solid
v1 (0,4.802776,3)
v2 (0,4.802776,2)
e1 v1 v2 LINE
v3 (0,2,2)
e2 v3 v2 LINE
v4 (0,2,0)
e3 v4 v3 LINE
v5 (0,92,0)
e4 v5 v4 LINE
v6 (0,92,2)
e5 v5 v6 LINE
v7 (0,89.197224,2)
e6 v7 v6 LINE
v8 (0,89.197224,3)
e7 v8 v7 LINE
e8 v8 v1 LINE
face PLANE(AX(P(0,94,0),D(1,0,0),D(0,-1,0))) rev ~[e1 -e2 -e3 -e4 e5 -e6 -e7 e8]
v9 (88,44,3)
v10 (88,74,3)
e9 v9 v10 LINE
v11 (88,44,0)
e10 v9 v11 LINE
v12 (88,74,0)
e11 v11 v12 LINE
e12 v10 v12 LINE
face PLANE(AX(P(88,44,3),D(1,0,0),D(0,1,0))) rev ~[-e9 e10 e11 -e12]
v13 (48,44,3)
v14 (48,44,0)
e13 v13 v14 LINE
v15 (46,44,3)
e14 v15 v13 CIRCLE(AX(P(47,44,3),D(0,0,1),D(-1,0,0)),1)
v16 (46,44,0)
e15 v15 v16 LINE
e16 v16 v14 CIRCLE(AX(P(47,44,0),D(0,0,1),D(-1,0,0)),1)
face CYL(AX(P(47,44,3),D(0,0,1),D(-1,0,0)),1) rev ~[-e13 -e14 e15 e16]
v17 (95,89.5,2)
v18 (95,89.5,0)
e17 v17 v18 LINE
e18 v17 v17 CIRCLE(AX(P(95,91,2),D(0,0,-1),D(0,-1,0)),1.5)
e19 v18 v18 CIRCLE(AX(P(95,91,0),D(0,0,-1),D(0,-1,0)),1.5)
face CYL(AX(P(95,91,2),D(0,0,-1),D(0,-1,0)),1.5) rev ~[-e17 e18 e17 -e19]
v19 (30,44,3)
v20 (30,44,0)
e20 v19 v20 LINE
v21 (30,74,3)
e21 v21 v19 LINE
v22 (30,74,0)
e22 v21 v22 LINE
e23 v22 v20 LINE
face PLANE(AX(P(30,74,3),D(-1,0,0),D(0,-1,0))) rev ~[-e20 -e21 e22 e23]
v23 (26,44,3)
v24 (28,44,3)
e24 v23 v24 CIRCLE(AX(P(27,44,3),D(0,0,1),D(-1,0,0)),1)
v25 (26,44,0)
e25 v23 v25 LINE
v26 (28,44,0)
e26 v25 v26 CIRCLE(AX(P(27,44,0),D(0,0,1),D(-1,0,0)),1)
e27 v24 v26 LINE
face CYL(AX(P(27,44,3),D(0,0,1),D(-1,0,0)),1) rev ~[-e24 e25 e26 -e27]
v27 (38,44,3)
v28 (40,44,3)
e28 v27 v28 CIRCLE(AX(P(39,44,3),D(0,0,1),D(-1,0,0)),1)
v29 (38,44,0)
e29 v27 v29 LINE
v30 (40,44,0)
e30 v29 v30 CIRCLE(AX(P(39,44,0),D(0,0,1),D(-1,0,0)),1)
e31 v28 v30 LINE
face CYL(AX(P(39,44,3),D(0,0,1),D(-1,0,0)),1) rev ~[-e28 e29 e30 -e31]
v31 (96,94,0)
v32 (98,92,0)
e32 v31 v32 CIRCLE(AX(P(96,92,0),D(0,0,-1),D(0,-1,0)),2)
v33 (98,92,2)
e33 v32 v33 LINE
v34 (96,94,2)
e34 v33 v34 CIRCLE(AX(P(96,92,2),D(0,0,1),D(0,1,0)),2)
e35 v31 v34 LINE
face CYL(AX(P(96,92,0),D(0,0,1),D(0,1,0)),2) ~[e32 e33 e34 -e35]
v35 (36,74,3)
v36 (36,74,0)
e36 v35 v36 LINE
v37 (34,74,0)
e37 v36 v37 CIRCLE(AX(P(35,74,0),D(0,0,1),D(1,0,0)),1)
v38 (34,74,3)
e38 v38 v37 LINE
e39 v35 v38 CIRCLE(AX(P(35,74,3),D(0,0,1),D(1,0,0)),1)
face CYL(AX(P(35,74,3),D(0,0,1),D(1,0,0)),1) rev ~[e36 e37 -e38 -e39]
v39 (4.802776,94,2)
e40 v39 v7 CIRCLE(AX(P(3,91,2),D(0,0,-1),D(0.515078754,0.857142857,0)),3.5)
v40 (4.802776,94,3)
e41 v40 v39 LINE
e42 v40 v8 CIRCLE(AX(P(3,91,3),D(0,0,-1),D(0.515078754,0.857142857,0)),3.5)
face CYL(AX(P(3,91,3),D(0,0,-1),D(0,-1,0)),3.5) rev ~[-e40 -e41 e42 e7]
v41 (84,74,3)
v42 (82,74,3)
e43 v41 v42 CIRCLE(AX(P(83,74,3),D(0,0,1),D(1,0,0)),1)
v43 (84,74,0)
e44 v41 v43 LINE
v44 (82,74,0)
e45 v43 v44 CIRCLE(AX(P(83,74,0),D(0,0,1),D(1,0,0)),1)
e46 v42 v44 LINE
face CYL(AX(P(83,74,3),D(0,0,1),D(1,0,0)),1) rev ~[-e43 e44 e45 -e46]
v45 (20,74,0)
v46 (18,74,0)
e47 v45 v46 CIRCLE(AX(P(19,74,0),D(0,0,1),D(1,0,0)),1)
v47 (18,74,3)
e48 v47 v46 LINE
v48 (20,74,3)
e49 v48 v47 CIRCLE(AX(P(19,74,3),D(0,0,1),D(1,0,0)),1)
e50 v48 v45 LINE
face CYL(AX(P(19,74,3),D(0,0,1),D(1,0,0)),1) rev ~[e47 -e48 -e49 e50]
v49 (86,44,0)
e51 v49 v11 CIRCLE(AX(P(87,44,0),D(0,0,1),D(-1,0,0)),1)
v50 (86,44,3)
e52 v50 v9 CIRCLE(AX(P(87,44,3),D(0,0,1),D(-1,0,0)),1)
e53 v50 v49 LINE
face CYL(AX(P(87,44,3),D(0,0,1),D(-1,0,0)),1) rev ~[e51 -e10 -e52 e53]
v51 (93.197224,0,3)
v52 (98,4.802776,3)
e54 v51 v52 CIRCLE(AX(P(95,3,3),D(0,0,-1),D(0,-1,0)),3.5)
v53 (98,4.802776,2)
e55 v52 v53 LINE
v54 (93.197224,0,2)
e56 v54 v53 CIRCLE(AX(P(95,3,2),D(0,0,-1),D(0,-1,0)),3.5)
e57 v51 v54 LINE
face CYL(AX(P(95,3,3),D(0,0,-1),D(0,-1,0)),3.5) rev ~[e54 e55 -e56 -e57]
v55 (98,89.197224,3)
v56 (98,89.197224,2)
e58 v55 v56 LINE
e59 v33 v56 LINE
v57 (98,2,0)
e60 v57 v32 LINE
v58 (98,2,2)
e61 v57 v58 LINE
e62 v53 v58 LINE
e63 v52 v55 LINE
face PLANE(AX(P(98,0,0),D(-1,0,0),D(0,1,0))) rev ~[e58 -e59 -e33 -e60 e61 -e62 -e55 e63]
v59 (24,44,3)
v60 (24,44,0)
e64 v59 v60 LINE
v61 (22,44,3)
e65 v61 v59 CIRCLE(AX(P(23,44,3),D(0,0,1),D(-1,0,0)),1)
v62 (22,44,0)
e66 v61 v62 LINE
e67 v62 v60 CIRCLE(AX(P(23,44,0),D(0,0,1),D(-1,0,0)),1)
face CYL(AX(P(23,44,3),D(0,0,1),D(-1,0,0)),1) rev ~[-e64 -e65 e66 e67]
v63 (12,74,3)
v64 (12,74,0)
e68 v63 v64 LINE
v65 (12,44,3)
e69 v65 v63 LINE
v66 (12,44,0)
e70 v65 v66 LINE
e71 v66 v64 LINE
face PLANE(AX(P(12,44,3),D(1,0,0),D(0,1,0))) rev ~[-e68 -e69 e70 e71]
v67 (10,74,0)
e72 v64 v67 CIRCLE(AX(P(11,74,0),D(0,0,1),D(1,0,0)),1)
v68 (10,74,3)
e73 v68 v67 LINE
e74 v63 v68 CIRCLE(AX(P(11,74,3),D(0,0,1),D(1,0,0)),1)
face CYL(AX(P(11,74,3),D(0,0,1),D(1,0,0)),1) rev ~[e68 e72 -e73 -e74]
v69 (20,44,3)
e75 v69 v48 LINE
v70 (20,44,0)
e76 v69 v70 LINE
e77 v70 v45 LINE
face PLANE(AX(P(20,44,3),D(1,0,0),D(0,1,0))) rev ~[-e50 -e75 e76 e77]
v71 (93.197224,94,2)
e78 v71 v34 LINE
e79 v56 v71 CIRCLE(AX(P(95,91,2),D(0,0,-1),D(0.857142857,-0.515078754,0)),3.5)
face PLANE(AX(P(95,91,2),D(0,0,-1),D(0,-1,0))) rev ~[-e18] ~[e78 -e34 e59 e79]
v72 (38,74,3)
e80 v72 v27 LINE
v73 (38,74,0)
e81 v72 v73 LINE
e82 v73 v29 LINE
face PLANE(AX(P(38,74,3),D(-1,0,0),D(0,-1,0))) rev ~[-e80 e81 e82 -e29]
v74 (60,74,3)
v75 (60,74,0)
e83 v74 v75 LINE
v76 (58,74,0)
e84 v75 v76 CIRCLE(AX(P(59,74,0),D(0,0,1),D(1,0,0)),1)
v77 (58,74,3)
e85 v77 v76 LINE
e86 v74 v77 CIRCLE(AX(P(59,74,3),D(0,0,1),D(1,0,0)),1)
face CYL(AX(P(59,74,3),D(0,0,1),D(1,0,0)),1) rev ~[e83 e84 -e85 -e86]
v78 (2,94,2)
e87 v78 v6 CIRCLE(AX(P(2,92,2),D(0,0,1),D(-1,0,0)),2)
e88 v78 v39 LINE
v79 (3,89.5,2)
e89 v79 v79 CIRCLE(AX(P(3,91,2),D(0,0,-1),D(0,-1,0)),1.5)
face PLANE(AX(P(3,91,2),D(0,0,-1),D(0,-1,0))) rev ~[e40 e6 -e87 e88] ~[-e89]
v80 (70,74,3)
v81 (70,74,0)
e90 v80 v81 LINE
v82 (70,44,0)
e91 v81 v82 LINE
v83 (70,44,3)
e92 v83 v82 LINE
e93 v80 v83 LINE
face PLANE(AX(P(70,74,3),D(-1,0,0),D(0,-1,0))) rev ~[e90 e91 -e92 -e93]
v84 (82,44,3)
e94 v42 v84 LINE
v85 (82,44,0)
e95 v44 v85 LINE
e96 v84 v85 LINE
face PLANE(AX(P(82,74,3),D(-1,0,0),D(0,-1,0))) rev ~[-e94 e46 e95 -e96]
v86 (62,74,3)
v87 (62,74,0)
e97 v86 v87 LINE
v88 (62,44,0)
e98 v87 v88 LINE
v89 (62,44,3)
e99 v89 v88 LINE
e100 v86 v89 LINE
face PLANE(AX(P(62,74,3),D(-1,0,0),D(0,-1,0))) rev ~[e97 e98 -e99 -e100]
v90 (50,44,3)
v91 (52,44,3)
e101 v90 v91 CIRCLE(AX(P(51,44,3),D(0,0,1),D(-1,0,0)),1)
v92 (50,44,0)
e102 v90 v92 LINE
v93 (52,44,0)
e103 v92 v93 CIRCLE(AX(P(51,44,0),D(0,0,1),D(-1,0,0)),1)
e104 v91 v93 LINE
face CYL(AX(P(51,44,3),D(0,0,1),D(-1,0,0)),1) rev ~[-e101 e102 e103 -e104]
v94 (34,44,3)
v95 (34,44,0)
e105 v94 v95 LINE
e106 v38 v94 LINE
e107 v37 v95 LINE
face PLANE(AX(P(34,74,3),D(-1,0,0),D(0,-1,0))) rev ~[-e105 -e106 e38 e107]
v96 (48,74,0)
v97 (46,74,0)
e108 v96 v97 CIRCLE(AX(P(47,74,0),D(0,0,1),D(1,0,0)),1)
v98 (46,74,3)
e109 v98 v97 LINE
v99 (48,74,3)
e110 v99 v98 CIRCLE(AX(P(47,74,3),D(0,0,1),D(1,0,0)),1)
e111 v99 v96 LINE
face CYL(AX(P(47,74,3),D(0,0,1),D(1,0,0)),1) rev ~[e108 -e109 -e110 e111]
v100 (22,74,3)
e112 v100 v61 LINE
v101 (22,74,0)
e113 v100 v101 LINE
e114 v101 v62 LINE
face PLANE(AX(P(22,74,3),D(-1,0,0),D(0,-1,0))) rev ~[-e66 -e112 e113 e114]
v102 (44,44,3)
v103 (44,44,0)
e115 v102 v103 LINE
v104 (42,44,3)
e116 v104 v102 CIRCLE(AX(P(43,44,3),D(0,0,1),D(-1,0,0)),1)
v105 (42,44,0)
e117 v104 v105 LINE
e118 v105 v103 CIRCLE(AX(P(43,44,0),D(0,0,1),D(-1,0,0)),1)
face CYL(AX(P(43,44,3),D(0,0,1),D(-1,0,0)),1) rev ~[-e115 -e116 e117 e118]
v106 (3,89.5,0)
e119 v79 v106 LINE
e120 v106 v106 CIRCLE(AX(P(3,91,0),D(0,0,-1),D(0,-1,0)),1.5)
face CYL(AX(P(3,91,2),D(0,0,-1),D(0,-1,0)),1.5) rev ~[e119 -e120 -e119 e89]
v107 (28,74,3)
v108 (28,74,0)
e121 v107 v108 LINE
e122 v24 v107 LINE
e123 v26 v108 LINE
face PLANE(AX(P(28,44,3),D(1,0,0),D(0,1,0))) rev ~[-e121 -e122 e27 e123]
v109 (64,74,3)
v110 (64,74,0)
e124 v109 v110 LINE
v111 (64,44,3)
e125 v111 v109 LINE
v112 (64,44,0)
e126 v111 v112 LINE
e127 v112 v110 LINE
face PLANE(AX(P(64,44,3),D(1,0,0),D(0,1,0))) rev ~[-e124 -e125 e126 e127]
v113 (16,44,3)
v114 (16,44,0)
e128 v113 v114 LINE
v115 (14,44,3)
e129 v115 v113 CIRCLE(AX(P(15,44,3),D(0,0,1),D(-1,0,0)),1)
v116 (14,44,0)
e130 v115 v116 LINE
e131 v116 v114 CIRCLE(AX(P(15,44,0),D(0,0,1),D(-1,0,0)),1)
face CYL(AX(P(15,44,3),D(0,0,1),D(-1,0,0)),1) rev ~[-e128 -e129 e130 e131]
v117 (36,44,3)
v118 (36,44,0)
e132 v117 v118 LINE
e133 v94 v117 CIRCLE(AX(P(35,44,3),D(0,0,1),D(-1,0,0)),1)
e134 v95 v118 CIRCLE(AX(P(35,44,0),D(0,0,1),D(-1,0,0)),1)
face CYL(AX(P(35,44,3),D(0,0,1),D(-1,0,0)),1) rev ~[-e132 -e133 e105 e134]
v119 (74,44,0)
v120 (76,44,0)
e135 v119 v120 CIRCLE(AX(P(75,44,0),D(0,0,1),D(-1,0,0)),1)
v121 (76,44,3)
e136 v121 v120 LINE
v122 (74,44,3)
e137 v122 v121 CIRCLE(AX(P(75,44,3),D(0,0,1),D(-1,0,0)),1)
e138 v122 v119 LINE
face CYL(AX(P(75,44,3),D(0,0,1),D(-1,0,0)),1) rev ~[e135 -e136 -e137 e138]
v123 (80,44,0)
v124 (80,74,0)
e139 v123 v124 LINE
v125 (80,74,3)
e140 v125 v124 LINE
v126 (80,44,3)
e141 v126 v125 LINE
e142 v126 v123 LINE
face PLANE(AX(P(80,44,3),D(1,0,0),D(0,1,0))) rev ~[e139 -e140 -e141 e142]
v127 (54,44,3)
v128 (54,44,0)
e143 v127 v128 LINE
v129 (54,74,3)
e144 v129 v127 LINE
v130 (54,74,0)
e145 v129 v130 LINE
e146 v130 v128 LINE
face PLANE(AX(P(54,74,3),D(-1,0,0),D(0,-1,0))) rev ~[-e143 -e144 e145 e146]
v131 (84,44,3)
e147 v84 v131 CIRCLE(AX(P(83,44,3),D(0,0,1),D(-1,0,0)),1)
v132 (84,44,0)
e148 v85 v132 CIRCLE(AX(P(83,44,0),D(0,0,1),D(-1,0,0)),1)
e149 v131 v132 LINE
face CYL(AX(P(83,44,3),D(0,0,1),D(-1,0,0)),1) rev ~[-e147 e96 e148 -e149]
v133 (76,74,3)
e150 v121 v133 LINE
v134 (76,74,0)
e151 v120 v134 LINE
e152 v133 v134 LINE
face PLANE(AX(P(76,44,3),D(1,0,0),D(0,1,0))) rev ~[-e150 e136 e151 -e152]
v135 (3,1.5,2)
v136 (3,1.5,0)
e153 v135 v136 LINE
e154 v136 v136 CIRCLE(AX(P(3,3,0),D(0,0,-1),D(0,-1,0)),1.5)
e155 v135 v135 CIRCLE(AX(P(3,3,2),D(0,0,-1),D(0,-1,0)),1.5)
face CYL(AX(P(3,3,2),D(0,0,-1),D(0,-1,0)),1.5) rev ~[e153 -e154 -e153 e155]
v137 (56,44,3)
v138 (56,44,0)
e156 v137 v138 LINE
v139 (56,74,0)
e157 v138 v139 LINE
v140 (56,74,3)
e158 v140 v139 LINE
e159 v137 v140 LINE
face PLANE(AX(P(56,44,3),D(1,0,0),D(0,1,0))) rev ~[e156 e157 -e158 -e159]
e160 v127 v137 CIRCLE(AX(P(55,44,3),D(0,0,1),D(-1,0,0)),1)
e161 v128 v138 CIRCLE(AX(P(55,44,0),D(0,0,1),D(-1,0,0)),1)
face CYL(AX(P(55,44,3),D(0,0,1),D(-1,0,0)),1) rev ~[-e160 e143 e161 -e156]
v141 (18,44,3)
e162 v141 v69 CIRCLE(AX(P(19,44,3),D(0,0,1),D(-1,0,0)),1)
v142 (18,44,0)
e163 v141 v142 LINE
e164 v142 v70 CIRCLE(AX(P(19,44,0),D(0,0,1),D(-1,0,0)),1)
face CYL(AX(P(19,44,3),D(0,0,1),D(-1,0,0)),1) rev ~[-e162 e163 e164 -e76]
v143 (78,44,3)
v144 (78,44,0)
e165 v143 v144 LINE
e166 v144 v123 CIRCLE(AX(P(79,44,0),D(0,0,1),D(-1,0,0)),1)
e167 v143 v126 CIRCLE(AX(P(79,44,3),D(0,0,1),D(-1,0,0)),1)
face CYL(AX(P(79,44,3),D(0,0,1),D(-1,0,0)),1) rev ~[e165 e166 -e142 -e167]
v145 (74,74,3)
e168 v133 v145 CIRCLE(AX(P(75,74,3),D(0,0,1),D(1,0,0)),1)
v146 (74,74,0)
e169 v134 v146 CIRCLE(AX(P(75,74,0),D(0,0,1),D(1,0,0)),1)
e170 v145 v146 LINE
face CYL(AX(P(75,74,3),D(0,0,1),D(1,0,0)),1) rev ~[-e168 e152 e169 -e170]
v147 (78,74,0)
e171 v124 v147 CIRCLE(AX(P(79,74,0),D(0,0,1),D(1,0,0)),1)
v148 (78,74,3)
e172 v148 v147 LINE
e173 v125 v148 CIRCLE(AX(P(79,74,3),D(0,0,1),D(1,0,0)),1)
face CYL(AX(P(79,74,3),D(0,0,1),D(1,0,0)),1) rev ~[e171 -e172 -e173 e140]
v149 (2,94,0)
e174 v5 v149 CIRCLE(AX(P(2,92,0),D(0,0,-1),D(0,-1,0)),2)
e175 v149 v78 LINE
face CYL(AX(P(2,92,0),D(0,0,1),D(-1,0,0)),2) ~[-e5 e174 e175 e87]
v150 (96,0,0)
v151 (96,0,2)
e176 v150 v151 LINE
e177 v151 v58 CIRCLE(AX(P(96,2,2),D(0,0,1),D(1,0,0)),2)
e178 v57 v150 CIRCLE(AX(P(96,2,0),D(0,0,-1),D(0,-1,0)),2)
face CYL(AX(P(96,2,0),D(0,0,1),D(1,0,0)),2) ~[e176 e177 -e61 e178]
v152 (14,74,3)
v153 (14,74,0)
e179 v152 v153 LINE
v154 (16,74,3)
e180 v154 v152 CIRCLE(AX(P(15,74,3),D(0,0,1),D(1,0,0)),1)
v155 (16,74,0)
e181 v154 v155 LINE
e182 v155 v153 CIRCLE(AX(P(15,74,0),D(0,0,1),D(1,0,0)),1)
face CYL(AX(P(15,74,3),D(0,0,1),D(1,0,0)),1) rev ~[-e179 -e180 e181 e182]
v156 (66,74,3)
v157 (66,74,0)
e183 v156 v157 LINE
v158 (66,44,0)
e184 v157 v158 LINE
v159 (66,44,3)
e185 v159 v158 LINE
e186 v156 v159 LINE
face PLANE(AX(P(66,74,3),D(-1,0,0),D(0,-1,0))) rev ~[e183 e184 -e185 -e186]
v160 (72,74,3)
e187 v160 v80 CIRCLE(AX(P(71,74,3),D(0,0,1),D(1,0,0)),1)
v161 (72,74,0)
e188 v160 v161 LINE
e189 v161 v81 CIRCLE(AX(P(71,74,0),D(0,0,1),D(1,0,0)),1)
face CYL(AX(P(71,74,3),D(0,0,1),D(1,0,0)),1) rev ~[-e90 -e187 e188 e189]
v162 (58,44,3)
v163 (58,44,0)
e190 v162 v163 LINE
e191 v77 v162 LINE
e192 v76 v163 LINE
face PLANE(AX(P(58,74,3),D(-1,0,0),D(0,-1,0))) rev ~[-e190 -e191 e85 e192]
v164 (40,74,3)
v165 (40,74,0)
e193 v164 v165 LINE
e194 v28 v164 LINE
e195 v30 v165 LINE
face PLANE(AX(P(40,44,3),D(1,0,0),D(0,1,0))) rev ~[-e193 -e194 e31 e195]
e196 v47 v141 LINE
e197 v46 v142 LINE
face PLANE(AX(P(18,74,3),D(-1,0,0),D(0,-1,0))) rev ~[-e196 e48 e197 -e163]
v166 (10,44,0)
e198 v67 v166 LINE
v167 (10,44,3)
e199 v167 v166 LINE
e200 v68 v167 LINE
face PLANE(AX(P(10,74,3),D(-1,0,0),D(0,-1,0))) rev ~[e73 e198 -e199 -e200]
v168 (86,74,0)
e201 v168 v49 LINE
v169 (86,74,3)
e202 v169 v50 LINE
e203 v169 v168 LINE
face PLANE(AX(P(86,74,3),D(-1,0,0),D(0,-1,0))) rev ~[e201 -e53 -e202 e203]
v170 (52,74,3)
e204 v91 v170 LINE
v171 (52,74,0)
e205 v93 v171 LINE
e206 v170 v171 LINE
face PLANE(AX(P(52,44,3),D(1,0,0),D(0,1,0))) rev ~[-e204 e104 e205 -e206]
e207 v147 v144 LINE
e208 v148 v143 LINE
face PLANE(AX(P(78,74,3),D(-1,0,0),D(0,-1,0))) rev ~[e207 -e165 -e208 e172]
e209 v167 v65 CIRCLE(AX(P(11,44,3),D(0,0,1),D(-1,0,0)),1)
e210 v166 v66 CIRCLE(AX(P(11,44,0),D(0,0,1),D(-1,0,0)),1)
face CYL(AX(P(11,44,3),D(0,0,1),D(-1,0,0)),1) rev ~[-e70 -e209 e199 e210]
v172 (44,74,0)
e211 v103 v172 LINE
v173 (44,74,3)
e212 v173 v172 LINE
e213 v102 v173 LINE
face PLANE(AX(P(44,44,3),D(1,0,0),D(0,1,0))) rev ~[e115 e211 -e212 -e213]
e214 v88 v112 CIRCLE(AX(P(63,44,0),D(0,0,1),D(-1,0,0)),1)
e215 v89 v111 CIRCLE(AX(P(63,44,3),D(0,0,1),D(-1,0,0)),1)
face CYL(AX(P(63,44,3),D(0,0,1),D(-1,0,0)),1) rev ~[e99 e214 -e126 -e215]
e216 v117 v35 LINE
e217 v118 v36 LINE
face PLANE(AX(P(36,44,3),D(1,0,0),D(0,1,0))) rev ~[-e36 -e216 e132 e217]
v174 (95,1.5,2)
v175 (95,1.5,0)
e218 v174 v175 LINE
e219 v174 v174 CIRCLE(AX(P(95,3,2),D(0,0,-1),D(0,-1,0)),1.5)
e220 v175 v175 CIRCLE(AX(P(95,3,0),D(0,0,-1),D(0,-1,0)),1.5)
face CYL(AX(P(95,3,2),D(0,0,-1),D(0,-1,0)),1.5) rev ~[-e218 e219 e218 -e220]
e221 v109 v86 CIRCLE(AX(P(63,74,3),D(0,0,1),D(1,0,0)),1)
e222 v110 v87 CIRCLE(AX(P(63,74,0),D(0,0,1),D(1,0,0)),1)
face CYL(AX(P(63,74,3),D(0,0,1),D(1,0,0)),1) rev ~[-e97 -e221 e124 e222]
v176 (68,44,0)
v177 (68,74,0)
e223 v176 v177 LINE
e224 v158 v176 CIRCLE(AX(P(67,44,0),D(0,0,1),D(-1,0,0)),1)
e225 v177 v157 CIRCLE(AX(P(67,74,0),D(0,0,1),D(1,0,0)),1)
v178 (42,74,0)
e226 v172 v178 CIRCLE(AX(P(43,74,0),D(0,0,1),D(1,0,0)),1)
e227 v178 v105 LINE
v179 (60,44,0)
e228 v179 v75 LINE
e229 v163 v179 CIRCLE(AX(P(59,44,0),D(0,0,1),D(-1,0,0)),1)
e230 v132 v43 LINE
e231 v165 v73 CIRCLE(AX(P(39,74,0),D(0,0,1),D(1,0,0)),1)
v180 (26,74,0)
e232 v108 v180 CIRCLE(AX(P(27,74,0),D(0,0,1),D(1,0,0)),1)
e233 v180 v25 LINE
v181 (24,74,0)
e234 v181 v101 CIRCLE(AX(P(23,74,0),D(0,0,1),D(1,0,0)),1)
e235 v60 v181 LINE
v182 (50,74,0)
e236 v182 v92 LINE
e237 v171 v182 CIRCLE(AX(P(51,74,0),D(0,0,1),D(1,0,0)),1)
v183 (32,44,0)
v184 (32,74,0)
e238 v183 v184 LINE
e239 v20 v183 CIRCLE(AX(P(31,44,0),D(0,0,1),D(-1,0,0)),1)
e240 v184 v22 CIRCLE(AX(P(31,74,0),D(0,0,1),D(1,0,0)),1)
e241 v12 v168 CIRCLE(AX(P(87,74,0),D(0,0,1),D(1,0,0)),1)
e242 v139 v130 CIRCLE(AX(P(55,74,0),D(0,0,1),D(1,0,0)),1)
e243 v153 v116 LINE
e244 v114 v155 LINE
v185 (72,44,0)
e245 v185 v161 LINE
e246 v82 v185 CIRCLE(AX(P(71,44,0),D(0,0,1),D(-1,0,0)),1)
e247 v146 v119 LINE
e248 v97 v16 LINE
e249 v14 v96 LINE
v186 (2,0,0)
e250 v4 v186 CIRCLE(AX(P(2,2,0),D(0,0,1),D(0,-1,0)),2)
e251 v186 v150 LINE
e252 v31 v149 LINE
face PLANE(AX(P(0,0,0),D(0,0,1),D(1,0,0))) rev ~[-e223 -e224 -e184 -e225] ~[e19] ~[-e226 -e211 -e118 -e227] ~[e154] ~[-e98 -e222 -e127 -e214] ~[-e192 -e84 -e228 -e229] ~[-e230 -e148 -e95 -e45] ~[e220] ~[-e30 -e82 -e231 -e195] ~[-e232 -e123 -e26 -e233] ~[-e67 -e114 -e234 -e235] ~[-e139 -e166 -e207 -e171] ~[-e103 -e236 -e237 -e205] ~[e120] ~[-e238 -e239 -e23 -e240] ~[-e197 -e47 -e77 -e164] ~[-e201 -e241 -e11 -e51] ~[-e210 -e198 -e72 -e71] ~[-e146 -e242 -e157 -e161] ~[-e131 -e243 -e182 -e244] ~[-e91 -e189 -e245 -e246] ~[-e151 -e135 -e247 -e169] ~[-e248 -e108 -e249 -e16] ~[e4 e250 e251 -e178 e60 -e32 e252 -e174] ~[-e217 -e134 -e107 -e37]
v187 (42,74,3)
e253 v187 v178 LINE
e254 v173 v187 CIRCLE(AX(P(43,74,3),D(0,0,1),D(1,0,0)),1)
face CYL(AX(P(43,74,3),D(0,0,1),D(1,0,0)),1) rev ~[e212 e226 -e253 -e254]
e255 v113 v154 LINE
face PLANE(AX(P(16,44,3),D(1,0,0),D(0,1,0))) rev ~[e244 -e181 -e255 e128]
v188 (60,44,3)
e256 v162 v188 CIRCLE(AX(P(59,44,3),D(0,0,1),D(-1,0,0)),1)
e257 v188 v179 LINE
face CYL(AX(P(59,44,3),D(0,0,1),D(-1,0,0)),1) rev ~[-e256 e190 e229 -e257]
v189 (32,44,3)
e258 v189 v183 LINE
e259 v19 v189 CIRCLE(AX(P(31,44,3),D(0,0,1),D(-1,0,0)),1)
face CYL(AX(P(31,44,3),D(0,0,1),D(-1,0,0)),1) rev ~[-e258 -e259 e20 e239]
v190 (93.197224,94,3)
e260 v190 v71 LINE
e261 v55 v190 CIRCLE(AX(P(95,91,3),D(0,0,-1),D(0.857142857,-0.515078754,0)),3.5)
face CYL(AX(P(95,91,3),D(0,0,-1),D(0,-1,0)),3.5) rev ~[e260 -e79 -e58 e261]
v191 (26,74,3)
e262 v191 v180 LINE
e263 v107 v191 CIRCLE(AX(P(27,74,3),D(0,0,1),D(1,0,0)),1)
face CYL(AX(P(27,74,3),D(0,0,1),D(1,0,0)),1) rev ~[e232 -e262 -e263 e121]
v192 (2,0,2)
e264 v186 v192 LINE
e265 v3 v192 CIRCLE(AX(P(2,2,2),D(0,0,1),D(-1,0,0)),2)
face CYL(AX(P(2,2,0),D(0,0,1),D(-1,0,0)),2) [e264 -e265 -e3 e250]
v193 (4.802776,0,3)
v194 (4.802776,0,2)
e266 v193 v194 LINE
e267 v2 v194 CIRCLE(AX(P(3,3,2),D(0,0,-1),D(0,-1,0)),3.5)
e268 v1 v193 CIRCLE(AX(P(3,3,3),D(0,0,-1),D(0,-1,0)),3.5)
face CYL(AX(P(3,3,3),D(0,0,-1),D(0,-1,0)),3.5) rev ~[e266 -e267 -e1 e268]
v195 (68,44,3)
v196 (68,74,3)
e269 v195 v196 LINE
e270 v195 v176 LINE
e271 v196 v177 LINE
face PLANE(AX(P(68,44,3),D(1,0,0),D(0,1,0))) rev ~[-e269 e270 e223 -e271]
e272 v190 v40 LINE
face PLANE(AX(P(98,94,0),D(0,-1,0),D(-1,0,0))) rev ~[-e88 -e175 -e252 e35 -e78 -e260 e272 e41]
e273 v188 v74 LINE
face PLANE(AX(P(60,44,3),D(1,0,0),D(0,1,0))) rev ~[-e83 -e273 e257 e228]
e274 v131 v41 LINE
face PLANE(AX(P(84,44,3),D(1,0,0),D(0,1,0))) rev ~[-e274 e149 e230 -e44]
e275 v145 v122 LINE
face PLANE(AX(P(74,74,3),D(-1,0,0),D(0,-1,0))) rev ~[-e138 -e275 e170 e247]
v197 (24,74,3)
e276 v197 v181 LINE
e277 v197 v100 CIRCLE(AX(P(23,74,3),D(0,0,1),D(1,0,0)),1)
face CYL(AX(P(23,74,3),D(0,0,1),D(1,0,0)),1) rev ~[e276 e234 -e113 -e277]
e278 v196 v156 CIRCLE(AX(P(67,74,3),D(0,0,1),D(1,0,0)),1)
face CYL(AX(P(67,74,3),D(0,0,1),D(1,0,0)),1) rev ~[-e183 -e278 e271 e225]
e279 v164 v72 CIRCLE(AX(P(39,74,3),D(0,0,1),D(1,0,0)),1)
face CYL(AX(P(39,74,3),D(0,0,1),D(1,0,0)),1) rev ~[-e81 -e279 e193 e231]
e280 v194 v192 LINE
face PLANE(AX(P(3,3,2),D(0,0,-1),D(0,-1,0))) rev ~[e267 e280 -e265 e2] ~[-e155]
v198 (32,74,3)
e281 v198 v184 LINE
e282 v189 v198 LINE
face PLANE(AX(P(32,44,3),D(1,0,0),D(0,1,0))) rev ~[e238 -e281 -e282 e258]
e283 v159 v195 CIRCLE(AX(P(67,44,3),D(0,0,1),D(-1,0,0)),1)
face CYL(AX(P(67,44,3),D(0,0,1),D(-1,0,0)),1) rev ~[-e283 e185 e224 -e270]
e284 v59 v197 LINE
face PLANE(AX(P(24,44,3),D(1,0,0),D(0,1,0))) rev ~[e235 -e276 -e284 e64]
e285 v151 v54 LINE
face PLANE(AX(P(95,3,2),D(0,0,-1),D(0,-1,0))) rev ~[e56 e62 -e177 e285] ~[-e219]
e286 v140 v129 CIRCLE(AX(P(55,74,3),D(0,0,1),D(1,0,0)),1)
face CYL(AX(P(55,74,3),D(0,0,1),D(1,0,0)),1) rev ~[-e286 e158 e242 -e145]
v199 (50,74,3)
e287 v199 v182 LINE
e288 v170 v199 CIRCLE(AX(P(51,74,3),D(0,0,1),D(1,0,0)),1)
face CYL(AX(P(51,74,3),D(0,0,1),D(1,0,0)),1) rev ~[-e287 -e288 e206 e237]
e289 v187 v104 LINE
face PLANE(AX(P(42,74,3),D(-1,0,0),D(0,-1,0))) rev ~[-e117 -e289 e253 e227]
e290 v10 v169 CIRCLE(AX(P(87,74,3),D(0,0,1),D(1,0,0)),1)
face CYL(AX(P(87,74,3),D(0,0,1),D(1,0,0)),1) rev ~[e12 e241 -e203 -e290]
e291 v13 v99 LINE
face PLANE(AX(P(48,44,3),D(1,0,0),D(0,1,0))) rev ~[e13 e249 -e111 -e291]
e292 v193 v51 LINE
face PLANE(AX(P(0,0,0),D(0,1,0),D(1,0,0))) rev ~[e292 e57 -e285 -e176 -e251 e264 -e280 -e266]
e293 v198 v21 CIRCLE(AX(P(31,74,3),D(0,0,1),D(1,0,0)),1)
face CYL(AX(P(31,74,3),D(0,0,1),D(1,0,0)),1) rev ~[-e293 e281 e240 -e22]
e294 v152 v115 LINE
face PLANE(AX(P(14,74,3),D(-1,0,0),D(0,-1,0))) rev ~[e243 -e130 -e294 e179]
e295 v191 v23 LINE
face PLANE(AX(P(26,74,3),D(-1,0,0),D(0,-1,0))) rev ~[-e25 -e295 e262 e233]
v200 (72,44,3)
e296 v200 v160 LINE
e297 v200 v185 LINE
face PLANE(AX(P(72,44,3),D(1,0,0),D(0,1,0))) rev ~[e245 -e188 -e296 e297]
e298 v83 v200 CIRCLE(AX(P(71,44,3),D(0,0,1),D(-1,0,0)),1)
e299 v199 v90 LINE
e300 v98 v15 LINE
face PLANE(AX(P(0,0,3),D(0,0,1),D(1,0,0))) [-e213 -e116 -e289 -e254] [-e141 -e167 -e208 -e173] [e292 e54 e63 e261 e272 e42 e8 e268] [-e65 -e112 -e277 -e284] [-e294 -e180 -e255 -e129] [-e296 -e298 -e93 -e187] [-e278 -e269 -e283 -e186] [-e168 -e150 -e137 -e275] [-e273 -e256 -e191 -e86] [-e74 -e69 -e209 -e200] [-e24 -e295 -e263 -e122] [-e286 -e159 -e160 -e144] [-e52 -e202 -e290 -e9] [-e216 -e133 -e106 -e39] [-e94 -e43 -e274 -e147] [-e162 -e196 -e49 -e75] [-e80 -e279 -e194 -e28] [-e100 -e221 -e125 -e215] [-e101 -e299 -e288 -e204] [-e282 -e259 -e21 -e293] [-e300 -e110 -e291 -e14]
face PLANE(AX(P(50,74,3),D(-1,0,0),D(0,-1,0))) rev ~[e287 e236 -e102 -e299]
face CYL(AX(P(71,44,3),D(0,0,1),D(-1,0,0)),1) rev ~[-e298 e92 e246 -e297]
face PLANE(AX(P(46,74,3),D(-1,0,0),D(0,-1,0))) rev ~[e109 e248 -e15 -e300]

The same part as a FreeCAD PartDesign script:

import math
import FreeCAD as App
import Part
import Sketcher

V = App.Vector


def edges_at(feature, points):
    """Names of the edges that pass closest to the given points."""
    edges = feature.Shape.Edges
    near = lambda p: min(range(len(edges)), key=lambda i: edges[i].distToShape(Part.Vertex(*p))[0])
    return sorted({f"Edge{near(p) + 1}" for p in points})

doc = App.newDocument("Part")
params = doc.addObject("Spreadsheet::Sheet", "Params")
for row, (alias, value) in enumerate([
    ("sketch1_width", "98 mm"),
    ("sketch1_height", "94 mm"),
    ("pad1_length", "3 mm"),
    ("fillet_radius", "2 mm"),
    ("sketch2_diameter", "3 mm"),
    ("hole_diameter", "3 mm"),
    ("hole_cbore_diameter", "7 mm"),
    ("hole_cbore_depth", "1 mm"),
    ("sketch3_radius", "1 mm"),
    ("sketch3_height", "30 mm"),
], start=1):
    params.set(f"A{row}", alias)
    params.set(f"B{row}", "=" + value)
    params.setAlias(f"B{row}", alias)

body = doc.addObject("PartDesign::Body", "Body")

# Sketch on XY plane
sketch1 = body.newObject("Sketcher::SketchObject", "Sketch")
sketch1.AttachmentSupport = (doc.getObject("XY_Plane"), [""])
sketch1.MapMode = "FlatFace"
sketch1.addGeometry([
    Part.LineSegment(V(0, 94, 0), V(0, 0, 0)),
    Part.LineSegment(V(0, 0, 0), V(98, 0, 0)),
    Part.LineSegment(V(98, 0, 0), V(98, 94, 0)),
    Part.LineSegment(V(98, 94, 0), V(0, 94, 0)),
], False)
sketch1.addConstraint([
    Sketcher.Constraint("Coincident", 0, 2, 1, 1),
    Sketcher.Constraint("Coincident", 1, 2, 2, 1),
    Sketcher.Constraint("Coincident", 2, 2, 3, 1),
    Sketcher.Constraint("Coincident", 3, 2, 0, 1),
    Sketcher.Constraint("Vertical", 0),
    Sketcher.Constraint("Horizontal", 1),
    Sketcher.Constraint("Vertical", 2),
    Sketcher.Constraint("Horizontal", 3),
    Sketcher.Constraint("Coincident", 0, 2, -1, 1),
    Sketcher.Constraint("DistanceX", 1, 1, 1, 2, 98.0),
    Sketcher.Constraint("DistanceY", 0, 2, 0, 1, 94.0),
])
sketch1.setExpression("Constraints[9]", "Params.sketch1_width")
sketch1.setExpression("Constraints[10]", "Params.sketch1_height")
pad1 = body.newObject("PartDesign::Pad", "Pad")
pad1.Profile = sketch1
pad1.setExpression("Length", "Params.pad1_length")
doc.recompute()

fillet = body.newObject("PartDesign::Fillet", "Fillet")
fillet.Base = (pad1, edges_at(pad1, [
    (98, 0, 1.5),
    (98, 94, 1.5),
    (0, 94, 1.5),
    (0, 0, 1.5),
]))
fillet.setExpression("Radius", "Params.fillet_radius")

# Sketch on XY plane
sketch2 = body.newObject("Sketcher::SketchObject", "Sketch001")
sketch2.AttachmentSupport = (doc.getObject("XY_Plane"), [""])
sketch2.MapMode = "FlatFace"
sketch2.AttachmentOffset = App.Placement(V(0, 0, 3), App.Rotation())
sketch2.addGeometry([
    Part.Circle(V(3, 91, 0), V(0, 0, 1), 1.5),
    Part.Circle(V(95, 91, 0), V(0, 0, 1), 1.5),
    Part.Circle(V(95, 3, 0), V(0, 0, 1), 1.5),
    Part.Circle(V(3, 3, 0), V(0, 0, 1), 1.5),
], False)
sketch2.addConstraint([
    Sketcher.Constraint("Equal", 0, 1),
    Sketcher.Constraint("Equal", 1, 2),
    Sketcher.Constraint("Equal", 2, 3),
    Sketcher.Constraint("Horizontal", 0, 3, 1, 3),
    Sketcher.Constraint("Horizontal", 2, 3, 3, 3),
    Sketcher.Constraint("Vertical", 1, 3, 2, 3),
    Sketcher.Constraint("Vertical", 0, 3, 3, 3),
    Sketcher.Constraint("Diameter", 0, 3.0),
    Sketcher.Constraint("DistanceX", -1, 1, 0, 3, 3.0),
    Sketcher.Constraint("DistanceY", -1, 1, 0, 3, 91.0),
    Sketcher.Constraint("DistanceX", -1, 1, 1, 3, 95.0),
    Sketcher.Constraint("DistanceY", -1, 1, 2, 3, 3.0),
])
sketch2.setExpression("Constraints[7]", "Params.sketch2_diameter")
doc.recompute()
hole = body.newObject("PartDesign::Hole", "Hole")
hole.Profile = sketch2
hole.ThreadType = "None"
hole.setExpression("Diameter", "Params.hole_diameter")
hole.DepthType = "ThroughAll"
hole.HoleCutType = "Counterbore"
hole.setExpression("HoleCutDiameter", "Params.hole_cbore_diameter")
hole.setExpression("HoleCutDepth", "Params.hole_cbore_depth")

# Sketch on XY plane
sketch3 = body.newObject("Sketcher::SketchObject", "Sketch002")
sketch3.AttachmentSupport = (doc.getObject("XY_Plane"), [""])
sketch3.MapMode = "FlatFace"
sketch3.AttachmentOffset = App.Placement(V(0, 0, 3), App.Rotation())
sketch3.addGeometry([
    Part.ArcOfCircle(Part.Circle(V(11, 74, 0), V(0, 0, 1), 1), math.radians(0), math.radians(180)),  # 0
    Part.LineSegment(V(10, 74, 0), V(10, 44, 0)),  # 1
    Part.ArcOfCircle(Part.Circle(V(11, 44, 0), V(0, 0, 1), 1), math.radians(180), math.radians(360)),  # 2
    Part.LineSegment(V(12, 44, 0), V(12, 74, 0)),  # 3
    Part.ArcOfCircle(Part.Circle(V(15, 44, 0), V(0, 0, 1), 1), math.radians(180), math.radians(360)),  # 4
    Part.LineSegment(V(16, 44, 0), V(16, 74, 0)),  # 5
    Part.ArcOfCircle(Part.Circle(V(15, 74, 0), V(0, 0, 1), 1), math.radians(0), math.radians(180)),  # 6
    Part.LineSegment(V(14, 74, 0), V(14, 44, 0)),  # 7
    Part.ArcOfCircle(Part.Circle(V(19, 44, 0), V(0, 0, 1), 1), math.radians(180), math.radians(360)),  # 8
    Part.LineSegment(V(20, 44, 0), V(20, 74, 0)),  # 9
    Part.ArcOfCircle(Part.Circle(V(19, 74, 0), V(0, 0, 1), 1), math.radians(0), math.radians(180)),  # 10
    Part.LineSegment(V(18, 74, 0), V(18, 44, 0)),  # 11
    Part.ArcOfCircle(Part.Circle(V(23, 44, 0), V(0, 0, 1), 1), math.radians(180), math.radians(360)),  # 12
    Part.LineSegment(V(24, 44, 0), V(24, 74, 0)),  # 13
    Part.ArcOfCircle(Part.Circle(V(23, 74, 0), V(0, 0, 1), 1), math.radians(0), math.radians(180)),  # 14
    Part.LineSegment(V(22, 74, 0), V(22, 44, 0)),  # 15
    Part.ArcOfCircle(Part.Circle(V(27, 44, 0), V(0, 0, 1), 1), math.radians(180), math.radians(360)),  # 16
    Part.LineSegment(V(28, 44, 0), V(28, 74, 0)),  # 17
    Part.ArcOfCircle(Part.Circle(V(27, 74, 0), V(0, 0, 1), 1), math.radians(0), math.radians(180)),  # 18
    Part.LineSegment(V(26, 74, 0), V(26, 44, 0)),  # 19
    Part.ArcOfCircle(Part.Circle(V(31, 44, 0), V(0, 0, 1), 1), math.radians(180), math.radians(360)),  # 20
    Part.LineSegment(V(32, 44, 0), V(32, 74, 0)),  # 21
    Part.ArcOfCircle(Part.Circle(V(31, 74, 0), V(0, 0, 1), 1), math.radians(0), math.radians(180)),  # 22
    Part.LineSegment(V(30, 74, 0), V(30, 44, 0)),  # 23
    Part.ArcOfCircle(Part.Circle(V(35, 44, 0), V(0, 0, 1), 1), math.radians(180), math.radians(360)),  # 24
    Part.LineSegment(V(36, 44, 0), V(36, 74, 0)),  # 25
    Part.ArcOfCircle(Part.Circle(V(35, 74, 0), V(0, 0, 1), 1), math.radians(0), math.radians(180)),  # 26
    Part.LineSegment(V(34, 74, 0), V(34, 44, 0)),  # 27
    Part.ArcOfCircle(Part.Circle(V(39, 44, 0), V(0, 0, 1), 1), math.radians(180), math.radians(360)),  # 28
    Part.LineSegment(V(40, 44, 0), V(40, 74, 0)),  # 29
    Part.ArcOfCircle(Part.Circle(V(39, 74, 0), V(0, 0, 1), 1), math.radians(0), math.radians(180)),  # 30
    Part.LineSegment(V(38, 74, 0), V(38, 44, 0)),  # 31
    Part.ArcOfCircle(Part.Circle(V(43, 44, 0), V(0, 0, 1), 1), math.radians(180), math.radians(360)),  # 32
    Part.LineSegment(V(44, 44, 0), V(44, 74, 0)),  # 33
    Part.ArcOfCircle(Part.Circle(V(43, 74, 0), V(0, 0, 1), 1), math.radians(0), math.radians(180)),  # 34
    Part.LineSegment(V(42, 74, 0), V(42, 44, 0)),  # 35
    Part.ArcOfCircle(Part.Circle(V(47, 44, 0), V(0, 0, 1), 1), math.radians(180), math.radians(360)),  # 36
    Part.LineSegment(V(48, 44, 0), V(48, 74, 0)),  # 37
    Part.ArcOfCircle(Part.Circle(V(47, 74, 0), V(0, 0, 1), 1), math.radians(0), math.radians(180)),  # 38
    Part.LineSegment(V(46, 74, 0), V(46, 44, 0)),  # 39
    Part.ArcOfCircle(Part.Circle(V(51, 44, 0), V(0, 0, 1), 1), math.radians(180), math.radians(360)),  # 40
    Part.LineSegment(V(52, 44, 0), V(52, 74, 0)),  # 41
    Part.ArcOfCircle(Part.Circle(V(51, 74, 0), V(0, 0, 1), 1), math.radians(0), math.radians(180)),  # 42
    Part.LineSegment(V(50, 74, 0), V(50, 44, 0)),  # 43
    Part.ArcOfCircle(Part.Circle(V(55, 44, 0), V(0, 0, 1), 1), math.radians(180), math.radians(360)),  # 44
    Part.LineSegment(V(56, 44, 0), V(56, 74, 0)),  # 45
    Part.ArcOfCircle(Part.Circle(V(55, 74, 0), V(0, 0, 1), 1), math.radians(0), math.radians(180)),  # 46
    Part.LineSegment(V(54, 74, 0), V(54, 44, 0)),  # 47
    Part.ArcOfCircle(Part.Circle(V(59, 44, 0), V(0, 0, 1), 1), math.radians(180), math.radians(360)),  # 48
    Part.LineSegment(V(60, 44, 0), V(60, 74, 0)),  # 49
    Part.ArcOfCircle(Part.Circle(V(59, 74, 0), V(0, 0, 1), 1), math.radians(0), math.radians(180)),  # 50
    Part.LineSegment(V(58, 74, 0), V(58, 44, 0)),  # 51
    Part.ArcOfCircle(Part.Circle(V(63, 44, 0), V(0, 0, 1), 1), math.radians(180), math.radians(360)),  # 52
    Part.LineSegment(V(64, 44, 0), V(64, 74, 0)),  # 53
    Part.ArcOfCircle(Part.Circle(V(63, 74, 0), V(0, 0, 1), 1), math.radians(0), math.radians(180)),  # 54
    Part.LineSegment(V(62, 74, 0), V(62, 44, 0)),  # 55
    Part.ArcOfCircle(Part.Circle(V(67, 44, 0), V(0, 0, 1), 1), math.radians(180), math.radians(360)),  # 56
    Part.LineSegment(V(68, 44, 0), V(68, 74, 0)),  # 57
    Part.ArcOfCircle(Part.Circle(V(67, 74, 0), V(0, 0, 1), 1), math.radians(0), math.radians(180)),  # 58
    Part.LineSegment(V(66, 74, 0), V(66, 44, 0)),  # 59
    Part.ArcOfCircle(Part.Circle(V(71, 44, 0), V(0, 0, 1), 1), math.radians(180), math.radians(360)),  # 60
    Part.LineSegment(V(72, 44, 0), V(72, 74, 0)),  # 61
    Part.ArcOfCircle(Part.Circle(V(71, 74, 0), V(0, 0, 1), 1), math.radians(0), math.radians(180)),  # 62
    Part.LineSegment(V(70, 74, 0), V(70, 44, 0)),  # 63
    Part.ArcOfCircle(Part.Circle(V(75, 44, 0), V(0, 0, 1), 1), math.radians(180), math.radians(360)),  # 64
    Part.LineSegment(V(76, 44, 0), V(76, 74, 0)),  # 65
    Part.ArcOfCircle(Part.Circle(V(75, 74, 0), V(0, 0, 1), 1), math.radians(0), math.radians(180)),  # 66
    Part.LineSegment(V(74, 74, 0), V(74, 44, 0)),  # 67
    Part.ArcOfCircle(Part.Circle(V(79, 44, 0), V(0, 0, 1), 1), math.radians(180), math.radians(360)),  # 68
    Part.LineSegment(V(80, 44, 0), V(80, 74, 0)),  # 69
    Part.ArcOfCircle(Part.Circle(V(79, 74, 0), V(0, 0, 1), 1), math.radians(0), math.radians(180)),  # 70
    Part.LineSegment(V(78, 74, 0), V(78, 44, 0)),  # 71
    Part.ArcOfCircle(Part.Circle(V(83, 44, 0), V(0, 0, 1), 1), math.radians(180), math.radians(360)),  # 72
    Part.LineSegment(V(84, 44, 0), V(84, 74, 0)),  # 73
    Part.ArcOfCircle(Part.Circle(V(83, 74, 0), V(0, 0, 1), 1), math.radians(0), math.radians(180)),  # 74
    Part.LineSegment(V(82, 74, 0), V(82, 44, 0)),  # 75
    Part.ArcOfCircle(Part.Circle(V(87, 44, 0), V(0, 0, 1), 1), math.radians(180), math.radians(360)),  # 76
    Part.LineSegment(V(88, 44, 0), V(88, 74, 0)),  # 77
    Part.ArcOfCircle(Part.Circle(V(87, 74, 0), V(0, 0, 1), 1), math.radians(0), math.radians(180)),  # 78
    Part.LineSegment(V(86, 74, 0), V(86, 44, 0)),  # 79
], False)
sketch3.addConstraint([
    Sketcher.Constraint("Tangent", 0, 2, 1, 1),
    Sketcher.Constraint("Tangent", 1, 2, 2, 1),
    Sketcher.Constraint("Tangent", 2, 2, 3, 1),
    Sketcher.Constraint("Tangent", 3, 2, 0, 1),
    Sketcher.Constraint("Tangent", 4, 2, 5, 1),
    Sketcher.Constraint("Tangent", 5, 2, 6, 1),
    Sketcher.Constraint("Tangent", 6, 2, 7, 1),
    Sketcher.Constraint("Tangent", 7, 2, 4, 1),
    Sketcher.Constraint("Tangent", 8, 2, 9, 1),
    Sketcher.Constraint("Tangent", 9, 2, 10, 1),
    Sketcher.Constraint("Tangent", 10, 2, 11, 1),
    Sketcher.Constraint("Tangent", 11, 2, 8, 1),
    Sketcher.Constraint("Tangent", 12, 2, 13, 1),
    Sketcher.Constraint("Tangent", 13, 2, 14, 1),
    Sketcher.Constraint("Tangent", 14, 2, 15, 1),
    Sketcher.Constraint("Tangent", 15, 2, 12, 1),
    Sketcher.Constraint("Tangent", 16, 2, 17, 1),
    Sketcher.Constraint("Tangent", 17, 2, 18, 1),
    Sketcher.Constraint("Tangent", 18, 2, 19, 1),
    Sketcher.Constraint("Tangent", 19, 2, 16, 1),
    Sketcher.Constraint("Tangent", 20, 2, 21, 1),
    Sketcher.Constraint("Tangent", 21, 2, 22, 1),
    Sketcher.Constraint("Tangent", 22, 2, 23, 1),
    Sketcher.Constraint("Tangent", 23, 2, 20, 1),
    Sketcher.Constraint("Tangent", 24, 2, 25, 1),
    Sketcher.Constraint("Tangent", 25, 2, 26, 1),
    Sketcher.Constraint("Tangent", 26, 2, 27, 1),
    Sketcher.Constraint("Tangent", 27, 2, 24, 1),
    Sketcher.Constraint("Tangent", 28, 2, 29, 1),
    Sketcher.Constraint("Tangent", 29, 2, 30, 1),
    Sketcher.Constraint("Tangent", 30, 2, 31, 1),
    Sketcher.Constraint("Tangent", 31, 2, 28, 1),
    Sketcher.Constraint("Tangent", 32, 2, 33, 1),
    Sketcher.Constraint("Tangent", 33, 2, 34, 1),
    Sketcher.Constraint("Tangent", 34, 2, 35, 1),
    Sketcher.Constraint("Tangent", 35, 2, 32, 1),
    Sketcher.Constraint("Tangent", 36, 2, 37, 1),
    Sketcher.Constraint("Tangent", 37, 2, 38, 1),
    Sketcher.Constraint("Tangent", 38, 2, 39, 1),
    Sketcher.Constraint("Tangent", 39, 2, 36, 1),
    Sketcher.Constraint("Tangent", 40, 2, 41, 1),
    Sketcher.Constraint("Tangent", 41, 2, 42, 1),
    Sketcher.Constraint("Tangent", 42, 2, 43, 1),
    Sketcher.Constraint("Tangent", 43, 2, 40, 1),
    Sketcher.Constraint("Tangent", 44, 2, 45, 1),
    Sketcher.Constraint("Tangent", 45, 2, 46, 1),
    Sketcher.Constraint("Tangent", 46, 2, 47, 1),
    Sketcher.Constraint("Tangent", 47, 2, 44, 1),
    Sketcher.Constraint("Tangent", 48, 2, 49, 1),
    Sketcher.Constraint("Tangent", 49, 2, 50, 1),
    Sketcher.Constraint("Tangent", 50, 2, 51, 1),
    Sketcher.Constraint("Tangent", 51, 2, 48, 1),
    Sketcher.Constraint("Tangent", 52, 2, 53, 1),
    Sketcher.Constraint("Tangent", 53, 2, 54, 1),
    Sketcher.Constraint("Tangent", 54, 2, 55, 1),
    Sketcher.Constraint("Tangent", 55, 2, 52, 1),
    Sketcher.Constraint("Tangent", 56, 2, 57, 1),
    Sketcher.Constraint("Tangent", 57, 2, 58, 1),
    Sketcher.Constraint("Tangent", 58, 2, 59, 1),
    Sketcher.Constraint("Tangent", 59, 2, 56, 1),
    Sketcher.Constraint("Tangent", 60, 2, 61, 1),
    Sketcher.Constraint("Tangent", 61, 2, 62, 1),
    Sketcher.Constraint("Tangent", 62, 2, 63, 1),
    Sketcher.Constraint("Tangent", 63, 2, 60, 1),
    Sketcher.Constraint("Tangent", 64, 2, 65, 1),
    Sketcher.Constraint("Tangent", 65, 2, 66, 1),
    Sketcher.Constraint("Tangent", 66, 2, 67, 1),
    Sketcher.Constraint("Tangent", 67, 2, 64, 1),
    Sketcher.Constraint("Tangent", 68, 2, 69, 1),
    Sketcher.Constraint("Tangent", 69, 2, 70, 1),
    Sketcher.Constraint("Tangent", 70, 2, 71, 1),
    Sketcher.Constraint("Tangent", 71, 2, 68, 1),
    Sketcher.Constraint("Tangent", 72, 2, 73, 1),
    Sketcher.Constraint("Tangent", 73, 2, 74, 1),
    Sketcher.Constraint("Tangent", 74, 2, 75, 1),
    Sketcher.Constraint("Tangent", 75, 2, 72, 1),
    Sketcher.Constraint("Tangent", 76, 2, 77, 1),
    Sketcher.Constraint("Tangent", 77, 2, 78, 1),
    Sketcher.Constraint("Tangent", 78, 2, 79, 1),
    Sketcher.Constraint("Tangent", 79, 2, 76, 1),
    Sketcher.Constraint("Vertical", 1),
    Sketcher.Constraint("Vertical", 3),
    Sketcher.Constraint("Vertical", 5),
    Sketcher.Constraint("Vertical", 7),
    Sketcher.Constraint("Vertical", 9),
    Sketcher.Constraint("Vertical", 11),
    Sketcher.Constraint("Vertical", 13),
    Sketcher.Constraint("Vertical", 15),
    Sketcher.Constraint("Vertical", 17),
    Sketcher.Constraint("Vertical", 19),
    Sketcher.Constraint("Vertical", 21),
    Sketcher.Constraint("Vertical", 23),
    Sketcher.Constraint("Vertical", 25),
    Sketcher.Constraint("Vertical", 27),
    Sketcher.Constraint("Vertical", 29),
    Sketcher.Constraint("Vertical", 31),
    Sketcher.Constraint("Vertical", 33),
    Sketcher.Constraint("Vertical", 35),
    Sketcher.Constraint("Vertical", 37),
    Sketcher.Constraint("Vertical", 39),
    Sketcher.Constraint("Vertical", 41),
    Sketcher.Constraint("Vertical", 43),
    Sketcher.Constraint("Vertical", 45),
    Sketcher.Constraint("Vertical", 47),
    Sketcher.Constraint("Vertical", 49),
    Sketcher.Constraint("Vertical", 51),
    Sketcher.Constraint("Vertical", 53),
    Sketcher.Constraint("Vertical", 55),
    Sketcher.Constraint("Vertical", 57),
    Sketcher.Constraint("Vertical", 59),
    Sketcher.Constraint("Vertical", 61),
    Sketcher.Constraint("Vertical", 63),
    Sketcher.Constraint("Vertical", 65),
    Sketcher.Constraint("Vertical", 67),
    Sketcher.Constraint("Vertical", 69),
    Sketcher.Constraint("Vertical", 71),
    Sketcher.Constraint("Vertical", 73),
    Sketcher.Constraint("Vertical", 75),
    Sketcher.Constraint("Vertical", 77),
    Sketcher.Constraint("Vertical", 79),
    Sketcher.Constraint("Equal", 2, 4),
    Sketcher.Constraint("Equal", 6, 8),
    Sketcher.Constraint("Equal", 10, 12),
    Sketcher.Constraint("Equal", 14, 16),
    Sketcher.Constraint("Equal", 18, 20),
    Sketcher.Constraint("Equal", 22, 24),
    Sketcher.Constraint("Equal", 26, 28),
    Sketcher.Constraint("Equal", 30, 32),
    Sketcher.Constraint("Equal", 34, 36),
    Sketcher.Constraint("Equal", 38, 40),
    Sketcher.Constraint("Equal", 42, 44),
    Sketcher.Constraint("Equal", 46, 48),
    Sketcher.Constraint("Equal", 50, 52),
    Sketcher.Constraint("Equal", 54, 56),
    Sketcher.Constraint("Equal", 58, 60),
    Sketcher.Constraint("Equal", 62, 64),
    Sketcher.Constraint("Equal", 66, 68),
    Sketcher.Constraint("Equal", 70, 72),
    Sketcher.Constraint("Equal", 74, 76),
    Sketcher.Constraint("Horizontal", 2, 3, 4, 3),
    Sketcher.Constraint("Horizontal", 0, 3, 6, 3),
    Sketcher.Constraint("Horizontal", 4, 3, 8, 3),
    Sketcher.Constraint("Horizontal", 6, 3, 10, 3),
    Sketcher.Constraint("Horizontal", 8, 3, 12, 3),
    Sketcher.Constraint("Horizontal", 10, 3, 14, 3),
    Sketcher.Constraint("Horizontal", 12, 3, 16, 3),
    Sketcher.Constraint("Horizontal", 14, 3, 18, 3),
    Sketcher.Constraint("Horizontal", 16, 3, 20, 3),
    Sketcher.Constraint("Horizontal", 18, 3, 22, 3),
    Sketcher.Constraint("Horizontal", 20, 3, 24, 3),
    Sketcher.Constraint("Horizontal", 22, 3, 26, 3),
    Sketcher.Constraint("Horizontal", 24, 3, 28, 3),
    Sketcher.Constraint("Horizontal", 26, 3, 30, 3),
    Sketcher.Constraint("Horizontal", 28, 3, 32, 3),
    Sketcher.Constraint("Horizontal", 30, 3, 34, 3),
    Sketcher.Constraint("Horizontal", 32, 3, 36, 3),
    Sketcher.Constraint("Horizontal", 34, 3, 38, 3),
    Sketcher.Constraint("Horizontal", 36, 3, 40, 3),
    Sketcher.Constraint("Horizontal", 38, 3, 42, 3),
    Sketcher.Constraint("Horizontal", 40, 3, 44, 3),
    Sketcher.Constraint("Horizontal", 42, 3, 46, 3),
    Sketcher.Constraint("Horizontal", 44, 3, 48, 3),
    Sketcher.Constraint("Horizontal", 46, 3, 50, 3),
    Sketcher.Constraint("Horizontal", 48, 3, 52, 3),
    Sketcher.Constraint("Horizontal", 50, 3, 54, 3),
    Sketcher.Constraint("Horizontal", 52, 3, 56, 3),
    Sketcher.Constraint("Horizontal", 54, 3, 58, 3),
    Sketcher.Constraint("Horizontal", 56, 3, 60, 3),
    Sketcher.Constraint("Horizontal", 58, 3, 62, 3),
    Sketcher.Constraint("Horizontal", 60, 3, 64, 3),
    Sketcher.Constraint("Horizontal", 62, 3, 66, 3),
    Sketcher.Constraint("Horizontal", 64, 3, 68, 3),
    Sketcher.Constraint("Horizontal", 66, 3, 70, 3),
    Sketcher.Constraint("Horizontal", 68, 3, 72, 3),
    Sketcher.Constraint("Horizontal", 70, 3, 74, 3),
    Sketcher.Constraint("Horizontal", 72, 3, 76, 3),
    Sketcher.Constraint("Horizontal", 74, 3, 78, 3),
    Sketcher.Constraint("Radius", 0, 1.0),
    Sketcher.Constraint("DistanceY", 1, 2, 1, 1, 30.0),
    Sketcher.Constraint("DistanceX", -1, 1, 8, 2, 20.0),
    Sketcher.Constraint("DistanceX", -1, 1, 22, 2, 30.0),
    Sketcher.Constraint("DistanceX", -1, 1, 0, 3, 11.0),
    Sketcher.Constraint("DistanceY", -1, 1, 0, 3, 74.0),
    Sketcher.Constraint("DistanceX", -1, 1, 4, 3, 15.0),
    Sketcher.Constraint("DistanceX", -1, 1, 12, 3, 23.0),
    Sketcher.Constraint("DistanceX", -1, 1, 16, 3, 27.0),
    Sketcher.Constraint("DistanceX", -1, 1, 24, 3, 35.0),
    Sketcher.Constraint("DistanceX", -1, 1, 28, 3, 39.0),
    Sketcher.Constraint("DistanceX", -1, 1, 32, 3, 43.0),
    Sketcher.Constraint("DistanceX", -1, 1, 36, 3, 47.0),
    Sketcher.Constraint("DistanceX", -1, 1, 40, 3, 51.0),
    Sketcher.Constraint("DistanceX", -1, 1, 44, 3, 55.0),
    Sketcher.Constraint("DistanceX", -1, 1, 48, 3, 59.0),
    Sketcher.Constraint("DistanceX", -1, 1, 52, 3, 63.0),
    Sketcher.Constraint("DistanceX", -1, 1, 56, 3, 67.0),
    Sketcher.Constraint("DistanceX", -1, 1, 60, 3, 71.0),
    Sketcher.Constraint("DistanceX", -1, 1, 64, 3, 75.0),
    Sketcher.Constraint("DistanceX", -1, 1, 68, 3, 79.0),
    Sketcher.Constraint("DistanceX", -1, 1, 72, 3, 83.0),
    Sketcher.Constraint("DistanceX", -1, 1, 76, 3, 87.0),
])
sketch3.setExpression("Constraints[177]", "Params.sketch3_radius")
sketch3.setExpression("Constraints[178]", "Params.sketch3_height")
pocket1 = body.newObject("PartDesign::Pocket", "Pocket")
pocket1.Profile = sketch3
pocket1.Type = "ThroughAll"

doc.recompute()
